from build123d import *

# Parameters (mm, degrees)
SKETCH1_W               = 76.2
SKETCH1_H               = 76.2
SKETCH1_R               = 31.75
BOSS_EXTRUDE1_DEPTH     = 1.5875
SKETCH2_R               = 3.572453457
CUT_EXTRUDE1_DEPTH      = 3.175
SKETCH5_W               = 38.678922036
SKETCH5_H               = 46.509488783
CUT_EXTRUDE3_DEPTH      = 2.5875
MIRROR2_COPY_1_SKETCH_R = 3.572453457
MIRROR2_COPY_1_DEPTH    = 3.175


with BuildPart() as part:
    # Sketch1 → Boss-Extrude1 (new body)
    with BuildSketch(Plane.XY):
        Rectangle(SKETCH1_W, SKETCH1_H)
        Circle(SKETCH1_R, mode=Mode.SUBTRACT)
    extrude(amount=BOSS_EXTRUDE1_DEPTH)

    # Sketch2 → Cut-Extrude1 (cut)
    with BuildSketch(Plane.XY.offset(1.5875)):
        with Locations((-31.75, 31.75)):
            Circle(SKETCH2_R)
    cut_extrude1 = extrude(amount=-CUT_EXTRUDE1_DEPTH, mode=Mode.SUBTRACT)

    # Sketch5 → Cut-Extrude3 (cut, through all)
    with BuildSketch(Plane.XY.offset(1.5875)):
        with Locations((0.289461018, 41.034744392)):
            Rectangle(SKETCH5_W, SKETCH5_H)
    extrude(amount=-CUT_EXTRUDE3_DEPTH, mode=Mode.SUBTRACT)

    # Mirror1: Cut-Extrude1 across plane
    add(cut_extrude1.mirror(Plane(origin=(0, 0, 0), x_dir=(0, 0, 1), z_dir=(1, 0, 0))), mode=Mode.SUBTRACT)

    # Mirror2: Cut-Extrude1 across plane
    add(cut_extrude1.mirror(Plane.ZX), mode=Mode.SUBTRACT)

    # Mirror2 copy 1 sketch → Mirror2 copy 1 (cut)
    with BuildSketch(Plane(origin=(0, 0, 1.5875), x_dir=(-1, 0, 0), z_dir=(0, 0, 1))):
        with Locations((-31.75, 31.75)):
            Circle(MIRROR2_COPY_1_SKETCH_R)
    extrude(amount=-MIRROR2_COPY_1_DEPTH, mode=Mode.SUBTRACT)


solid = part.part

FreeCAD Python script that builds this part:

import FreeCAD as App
import Part
import Sketcher
Q = App.Units.Quantity


def add_polygon(sketch, points):
    """Adds a closed chain of lines whose ends are joined by coincident constraints."""
    first, n = sketch.GeometryCount, len(points)
    for a, b in zip(points, points[1:] + points[:1]):
        sketch.addGeometry(Part.LineSegment(App.Vector(*a, 0), App.Vector(*b, 0)), False)
    for i in range(n):
        sketch.addConstraint(Sketcher.Constraint("Coincident", first + i, 2, first + (i + 1) % n, 1))

doc = App.newDocument("Part")
body = doc.addObject("PartDesign::Body", "Body")

sketch1 = body.newObject("Sketcher::SketchObject", "Sketch")
sketch1.AttachmentSupport = (doc.getObject("XY_Plane"), [""])
sketch1.MapMode = "FlatFace"
add_polygon(sketch1, [(-38, 38), (-38, -38), (38, -38), (38, 38)])
sketch1.addGeometry(Part.Circle(App.Vector(0, 0, 0), App.Vector(0, 0, 1), 32), False)
sketch1.addConstraint(Sketcher.Constraint("Vertical", 0))
sketch1.addConstraint(Sketcher.Constraint("Horizontal", 1))
sketch1.addConstraint(Sketcher.Constraint("Vertical", 2))
sketch1.addConstraint(Sketcher.Constraint("Horizontal", 3))
sketch1.addConstraint(Sketcher.Constraint("Coincident", 4, 3, -1, 1))
sketch1.addConstraint(Sketcher.Constraint("Symmetric", 0, 2, 2, 2, -1, 1))
sketch1.addConstraint(Sketcher.Constraint("Equal", 3, 0))
sketch1.addConstraint(Sketcher.Constraint("Diameter", 4, Q("2.5 in")))
sketch1.addConstraint(Sketcher.Constraint("DistanceX", 1, 1, 1, 2, Q("3 in")))
pad1 = body.newObject("PartDesign::Pad", "Pad")
pad1.Profile = sketch1
pad1.Length = Q("0.0625 in")

sketch2 = body.newObject("Sketcher::SketchObject", "Sketch001")
sketch2.AttachmentSupport = (doc.getObject("XY_Plane"), [""])
sketch2.MapMode = "FlatFace"
sketch2.AttachmentOffset = App.Placement(App.Vector(0, 0, 0.0625 * 25.4), App.Rotation())
sketch2.addGeometry(Part.Circle(App.Vector(-31.8, 31.8, 0), App.Vector(0, 0, 1), 3.6), False)
sketch2.addConstraint(Sketcher.Constraint("DistanceX", 0, 3, -1, 1, Q("1.25 in")))
sketch2.addConstraint(Sketcher.Constraint("DistanceY", -1, 1, 0, 3, Q("1.25 in")))
sketch2.addConstraint(Sketcher.Constraint("Diameter", 0, 7.144907))
pocket1 = body.newObject("PartDesign::Pocket", "Pocket")
pocket1.Profile = sketch2
pocket1.Length = Q("0.125 in")

sketch3 = body.newObject("Sketcher::SketchObject", "Sketch002")
sketch3.AttachmentSupport = (doc.getObject("XY_Plane"), [""])
sketch3.MapMode = "FlatFace"
sketch3.AttachmentOffset = App.Placement(App.Vector(0, 0, 0.0625 * 25.4), App.Rotation())
add_polygon(sketch3, [(-19, 64), (-19, 18), (20, 18), (20, 64)])
sketch3.addConstraint(Sketcher.Constraint("Vertical", 0))
sketch3.addConstraint(Sketcher.Constraint("Horizontal", 1))
sketch3.addConstraint(Sketcher.Constraint("Vertical", 2))
sketch3.addConstraint(Sketcher.Constraint("Horizontal", 3))
sketch3.addConstraint(Sketcher.Constraint("DistanceY", -1, 1, 0, 2, Q("0.7 in")))
sketch3.addConstraint(Sketcher.Constraint("DistanceX", 0, 2, -1, 1, Q("0.75 in")))
sketch3.addConstraint(Sketcher.Constraint("DistanceY", 0, 2, 0, 1, 46.509489))
sketch3.addConstraint(Sketcher.Constraint("DistanceX", 1, 1, 1, 2, 38.678922))
pocket2 = body.newObject("PartDesign::Pocket", "Pocket001")
pocket2.Profile = sketch3
pocket2.Type = "ThroughAll"
doc.recompute()

mirrored = body.newObject("PartDesign::Mirrored", "Mirrored")
mirrored.Originals = [pocket1]
mirrored.MirrorPlane = (doc.getObject("YZ_Plane"), [""])
body.Tip = mirrored
doc.recompute()

mirrored2 = body.newObject("PartDesign::Mirrored", "Mirrored001")
mirrored2.Originals = [pocket1]
mirrored2.MirrorPlane = (doc.getObject("XZ_Plane"), [""])
body.Tip = mirrored2

sketch4 = body.newObject("Sketcher::SketchObject", "Sketch003")
sketch4.AttachmentSupport = (doc.getObject("XY_Plane"), [""])
sketch4.MapMode = "FlatFace"
sketch4.AttachmentOffset = App.Placement(App.Vector(0, 0, 0.0625 * 25.4), App.Rotation())
sketch4.addGeometry(Part.Circle(App.Vector(31.8, -31.8, 0), App.Vector(0, 0, 1), 3.6), False)
sketch4.addConstraint(Sketcher.Constraint("DistanceX", -1, 1, 0, 3, Q("1.25 in")))
sketch4.addConstraint(Sketcher.Constraint("DistanceY", 0, 3, -1, 1, Q("1.25 in")))
sketch4.addConstraint(Sketcher.Constraint("Diameter", 0, 7.144907))
pocket3 = body.newObject("PartDesign::Pocket", "Pocket002")
pocket3.Profile = sketch4
pocket3.Length = Q("0.125 in")

doc.recompute()
